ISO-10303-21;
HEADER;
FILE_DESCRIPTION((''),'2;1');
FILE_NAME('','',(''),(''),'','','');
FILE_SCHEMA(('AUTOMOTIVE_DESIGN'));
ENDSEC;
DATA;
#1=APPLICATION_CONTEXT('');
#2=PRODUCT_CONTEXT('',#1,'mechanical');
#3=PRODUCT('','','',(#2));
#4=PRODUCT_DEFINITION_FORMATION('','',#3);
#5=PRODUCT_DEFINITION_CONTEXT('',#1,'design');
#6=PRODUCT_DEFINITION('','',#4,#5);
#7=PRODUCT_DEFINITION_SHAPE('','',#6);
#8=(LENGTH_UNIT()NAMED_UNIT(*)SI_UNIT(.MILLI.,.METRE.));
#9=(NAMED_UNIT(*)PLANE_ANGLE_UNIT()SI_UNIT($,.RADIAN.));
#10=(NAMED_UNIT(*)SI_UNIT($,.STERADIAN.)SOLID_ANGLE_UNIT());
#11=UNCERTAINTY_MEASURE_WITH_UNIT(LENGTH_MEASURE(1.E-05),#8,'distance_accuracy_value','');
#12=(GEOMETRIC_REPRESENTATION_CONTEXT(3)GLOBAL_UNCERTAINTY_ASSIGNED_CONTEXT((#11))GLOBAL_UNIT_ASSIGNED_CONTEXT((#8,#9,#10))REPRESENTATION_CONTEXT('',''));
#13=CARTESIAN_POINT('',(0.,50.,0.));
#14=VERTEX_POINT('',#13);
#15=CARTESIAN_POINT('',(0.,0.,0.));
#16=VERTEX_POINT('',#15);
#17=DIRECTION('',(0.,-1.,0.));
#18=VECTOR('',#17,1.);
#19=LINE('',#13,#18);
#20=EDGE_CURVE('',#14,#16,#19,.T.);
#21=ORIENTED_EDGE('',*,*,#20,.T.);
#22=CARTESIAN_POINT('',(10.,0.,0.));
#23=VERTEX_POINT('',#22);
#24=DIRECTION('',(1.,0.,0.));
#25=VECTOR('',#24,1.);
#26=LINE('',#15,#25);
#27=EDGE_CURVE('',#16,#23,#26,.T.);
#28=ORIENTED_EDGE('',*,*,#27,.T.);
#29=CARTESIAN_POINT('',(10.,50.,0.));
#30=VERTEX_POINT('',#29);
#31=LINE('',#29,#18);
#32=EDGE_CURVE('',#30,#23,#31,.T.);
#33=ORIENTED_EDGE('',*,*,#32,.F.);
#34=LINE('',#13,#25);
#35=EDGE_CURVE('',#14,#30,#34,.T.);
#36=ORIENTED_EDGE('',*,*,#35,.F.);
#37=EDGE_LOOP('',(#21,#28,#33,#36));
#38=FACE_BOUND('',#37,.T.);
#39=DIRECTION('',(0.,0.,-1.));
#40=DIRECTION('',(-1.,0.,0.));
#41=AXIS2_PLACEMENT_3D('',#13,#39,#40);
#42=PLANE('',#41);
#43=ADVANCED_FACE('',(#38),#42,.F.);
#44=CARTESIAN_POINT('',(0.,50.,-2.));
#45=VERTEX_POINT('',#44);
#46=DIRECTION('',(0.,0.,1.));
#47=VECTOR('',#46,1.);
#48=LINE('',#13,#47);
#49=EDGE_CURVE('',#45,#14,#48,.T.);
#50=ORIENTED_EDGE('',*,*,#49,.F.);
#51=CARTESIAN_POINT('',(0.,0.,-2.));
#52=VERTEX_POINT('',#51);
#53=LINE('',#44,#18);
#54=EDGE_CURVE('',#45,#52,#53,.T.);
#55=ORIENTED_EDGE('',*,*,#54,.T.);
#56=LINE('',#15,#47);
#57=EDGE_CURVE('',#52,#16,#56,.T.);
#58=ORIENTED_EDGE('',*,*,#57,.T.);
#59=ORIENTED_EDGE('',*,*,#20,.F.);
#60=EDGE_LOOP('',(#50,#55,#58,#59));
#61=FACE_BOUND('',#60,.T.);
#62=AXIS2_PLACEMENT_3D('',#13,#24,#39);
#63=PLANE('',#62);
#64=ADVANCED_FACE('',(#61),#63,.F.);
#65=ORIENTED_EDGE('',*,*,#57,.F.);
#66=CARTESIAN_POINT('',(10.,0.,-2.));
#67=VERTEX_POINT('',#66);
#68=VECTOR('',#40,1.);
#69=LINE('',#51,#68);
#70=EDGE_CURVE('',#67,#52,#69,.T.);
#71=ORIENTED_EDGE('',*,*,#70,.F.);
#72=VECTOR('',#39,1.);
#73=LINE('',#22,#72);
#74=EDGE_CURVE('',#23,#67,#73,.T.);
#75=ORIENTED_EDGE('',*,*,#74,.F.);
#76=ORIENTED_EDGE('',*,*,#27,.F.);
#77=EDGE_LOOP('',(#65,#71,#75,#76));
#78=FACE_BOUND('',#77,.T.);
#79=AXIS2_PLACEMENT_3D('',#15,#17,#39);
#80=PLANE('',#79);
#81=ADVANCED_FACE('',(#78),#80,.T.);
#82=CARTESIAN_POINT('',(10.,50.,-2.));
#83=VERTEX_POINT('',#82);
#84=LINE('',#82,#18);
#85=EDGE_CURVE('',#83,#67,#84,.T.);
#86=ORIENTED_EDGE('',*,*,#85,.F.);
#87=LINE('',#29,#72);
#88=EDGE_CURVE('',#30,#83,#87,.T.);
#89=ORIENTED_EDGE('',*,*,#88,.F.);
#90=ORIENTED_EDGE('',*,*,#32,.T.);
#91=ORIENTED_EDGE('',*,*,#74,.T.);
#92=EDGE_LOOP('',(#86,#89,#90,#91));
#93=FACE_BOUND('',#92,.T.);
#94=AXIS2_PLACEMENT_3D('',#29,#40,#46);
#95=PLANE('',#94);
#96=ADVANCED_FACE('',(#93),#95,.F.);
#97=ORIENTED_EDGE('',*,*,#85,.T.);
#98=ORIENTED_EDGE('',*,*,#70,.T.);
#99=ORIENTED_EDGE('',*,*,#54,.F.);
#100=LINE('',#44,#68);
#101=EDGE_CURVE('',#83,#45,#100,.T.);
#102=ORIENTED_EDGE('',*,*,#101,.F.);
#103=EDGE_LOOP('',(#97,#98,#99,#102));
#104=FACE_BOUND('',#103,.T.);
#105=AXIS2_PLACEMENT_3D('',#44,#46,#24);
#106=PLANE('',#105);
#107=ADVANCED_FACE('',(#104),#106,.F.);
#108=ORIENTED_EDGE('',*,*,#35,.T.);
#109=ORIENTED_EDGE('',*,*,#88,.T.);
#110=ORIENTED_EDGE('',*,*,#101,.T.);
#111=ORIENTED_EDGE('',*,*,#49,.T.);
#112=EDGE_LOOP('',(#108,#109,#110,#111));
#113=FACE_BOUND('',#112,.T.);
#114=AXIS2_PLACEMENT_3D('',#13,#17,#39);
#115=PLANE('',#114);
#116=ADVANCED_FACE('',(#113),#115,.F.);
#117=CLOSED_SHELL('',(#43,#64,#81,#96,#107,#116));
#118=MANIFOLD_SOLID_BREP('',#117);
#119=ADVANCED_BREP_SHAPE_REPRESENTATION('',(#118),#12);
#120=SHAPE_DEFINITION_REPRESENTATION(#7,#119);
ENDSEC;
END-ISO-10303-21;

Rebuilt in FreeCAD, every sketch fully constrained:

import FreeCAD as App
import Part
import Sketcher

V = App.Vector
Q = App.Units.Quantity

doc = App.newDocument("Part")
body = doc.addObject("PartDesign::Body", "Body")

# Sketch on XZ plane
sketch1 = doc.addObject("Sketcher::SketchObject", "Sketch")
body.addObject(sketch1)
sketch1.AttachmentSupport = (doc.XZ_Plane, [""])
sketch1.MapMode = "FlatFace"
sketch1.addGeometry(Part.LineSegment(V(0, -2, 0), V(0, 0, 0)), False)
sketch1.addGeometry(Part.LineSegment(V(0, 0, 0), V(10, 0, 0)), False)
sketch1.addGeometry(Part.LineSegment(V(10, 0, 0), V(10, -2, 0)), False)
sketch1.addGeometry(Part.LineSegment(V(10, -2, 0), V(0, -2, 0)), False)
sketch1.addConstraint(Sketcher.Constraint("Coincident", 0, 2, 1, 1))
sketch1.addConstraint(Sketcher.Constraint("Coincident", 1, 2, 2, 1))
sketch1.addConstraint(Sketcher.Constraint("Coincident", 2, 2, 3, 1))
sketch1.addConstraint(Sketcher.Constraint("Coincident", 3, 2, 0, 1))
sketch1.addConstraint(Sketcher.Constraint("Vertical", 0))
sketch1.addConstraint(Sketcher.Constraint("Horizontal", 1))
sketch1.addConstraint(Sketcher.Constraint("Vertical", 2))
sketch1.addConstraint(Sketcher.Constraint("Horizontal", 3))
sketch1.addConstraint(Sketcher.Constraint("Coincident", 0, 2, -1, 1))
sketch1.addConstraint(Sketcher.Constraint("DistanceX", 1, 1, 1, 2, Q("10 mm")))
sketch1.addConstraint(Sketcher.Constraint("DistanceY", 0, 1, 0, 2, Q("2 mm")))
pad1 = doc.addObject("PartDesign::Pad", "Pad")
body.addObject(pad1)
pad1.Profile = sketch1
pad1.Length = 50
pad1.Reversed = True

doc.recompute()
